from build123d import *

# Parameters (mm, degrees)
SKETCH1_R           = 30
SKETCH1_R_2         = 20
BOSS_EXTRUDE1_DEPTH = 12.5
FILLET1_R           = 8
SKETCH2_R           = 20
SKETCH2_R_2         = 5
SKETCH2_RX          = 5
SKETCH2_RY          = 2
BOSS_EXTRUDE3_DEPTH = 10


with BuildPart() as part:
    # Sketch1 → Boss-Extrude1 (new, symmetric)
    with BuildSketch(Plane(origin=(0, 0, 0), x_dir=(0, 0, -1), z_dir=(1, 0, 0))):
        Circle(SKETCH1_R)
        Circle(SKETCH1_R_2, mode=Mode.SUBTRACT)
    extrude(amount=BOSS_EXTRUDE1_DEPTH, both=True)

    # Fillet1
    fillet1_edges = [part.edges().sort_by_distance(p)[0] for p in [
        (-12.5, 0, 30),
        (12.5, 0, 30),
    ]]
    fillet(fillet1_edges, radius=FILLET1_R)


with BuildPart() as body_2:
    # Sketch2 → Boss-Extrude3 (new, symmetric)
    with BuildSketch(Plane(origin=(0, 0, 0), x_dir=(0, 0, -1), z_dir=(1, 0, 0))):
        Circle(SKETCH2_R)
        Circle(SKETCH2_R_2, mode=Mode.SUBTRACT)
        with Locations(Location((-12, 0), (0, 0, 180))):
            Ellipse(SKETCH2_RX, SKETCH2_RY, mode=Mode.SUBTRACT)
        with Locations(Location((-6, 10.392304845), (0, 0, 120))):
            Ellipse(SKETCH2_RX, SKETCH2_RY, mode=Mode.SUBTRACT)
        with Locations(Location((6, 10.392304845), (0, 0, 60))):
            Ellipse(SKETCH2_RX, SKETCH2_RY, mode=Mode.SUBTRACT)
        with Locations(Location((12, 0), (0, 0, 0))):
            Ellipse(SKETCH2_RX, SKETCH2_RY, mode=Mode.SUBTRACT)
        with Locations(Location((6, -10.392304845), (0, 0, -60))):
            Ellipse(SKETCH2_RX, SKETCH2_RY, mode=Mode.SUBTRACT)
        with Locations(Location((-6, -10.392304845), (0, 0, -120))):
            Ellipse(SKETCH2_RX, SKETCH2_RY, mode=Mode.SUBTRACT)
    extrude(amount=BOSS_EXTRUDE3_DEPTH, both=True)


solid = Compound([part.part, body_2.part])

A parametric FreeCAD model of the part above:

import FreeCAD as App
import Part
import Sketcher


def edges_at(feature, points):
    """Names of the edges that pass closest to the given points."""
    edges = feature.Shape.Edges
    near = lambda p: min(range(len(edges)), key=lambda i: edges[i].distToShape(Part.Vertex(*p))[0])
    return sorted({f"Edge{near(p) + 1}" for p in points})

doc = App.newDocument("Part")
body = doc.addObject("PartDesign::Body", "Body")

sketch1 = body.newObject("Sketcher::SketchObject", "Sketch")
sketch1.AttachmentSupport = (doc.getObject("YZ_Plane"), [""])
sketch1.MapMode = "FlatFace"
sketch1.addGeometry(Part.Circle(App.Vector(0, 0, 0), App.Vector(0, 0, 1), 30), False)
sketch1.addGeometry(Part.Circle(App.Vector(0, 0, 0), App.Vector(0, 0, 1), 20), False)
sketch1.addConstraint(Sketcher.Constraint("Coincident", 0, 3, -1, 1))
sketch1.addConstraint(Sketcher.Constraint("Coincident", 1, 3, -1, 1))
sketch1.addConstraint(Sketcher.Constraint("Diameter", 0, 60.0))
sketch1.addConstraint(Sketcher.Constraint("Diameter", 1, 40.0))
pad1 = body.newObject("PartDesign::Pad", "Pad")
pad1.Profile = sketch1
pad1.Length = 25
pad1.Midplane = True
doc.recompute()

fillet = body.newObject("PartDesign::Fillet", "Fillet")
fillet.Base = (pad1, edges_at(pad1, [(-12.5, 0, 30), (12.5, 0, 30)]))
fillet.Radius = 8
body2 = doc.addObject("PartDesign::Body", "Body001")

sketch2 = body2.newObject("Sketcher::SketchObject", "Sketch001")
sketch2.AttachmentSupport = (doc.getObject("YZ_Plane001"), [""])
sketch2.MapMode = "FlatFace"
sketch2.addGeometry(Part.Circle(App.Vector(0, 0, 0), App.Vector(0, 0, 1), 20), False)
sketch2.addGeometry(Part.Ellipse(App.Vector(-14.722432, 8.5, 0), App.Vector(-11.392305, 4.267949, 0), App.Vector(-10.392305, 6, 0)), False)
sketch2.addGeometry(Part.Ellipse(App.Vector(0, 17, 0), App.Vector(-2, 12, 0), App.Vector(0, 12, 0)), False)
sketch2.addGeometry(Part.Ellipse(App.Vector(-14.722432, -8.5, 0), App.Vector(-9.392305, -7.732051, 0), App.Vector(-10.392305, -6, 0)), False)
sketch2.addGeometry(Part.Circle(App.Vector(0, 0, 0), App.Vector(0, 0, 1), 5), False)
sketch2.addGeometry(Part.Ellipse(App.Vector(0, -17, 0), App.Vector(2, -12, 0), App.Vector(0, -12, 0)), False)
sketch2.addGeometry(Part.Ellipse(App.Vector(14.722432, 8.5, 0), App.Vector(9.392305, 7.732051, 0), App.Vector(10.392305, 6, 0)), False)
sketch2.addGeometry(Part.Ellipse(App.Vector(14.722432, -8.5, 0), App.Vector(11.392305, -4.267949, 0), App.Vector(10.392305, -6, 0)), False)
sketch2.addConstraint(Sketcher.Constraint("Block", 1))
sketch2.addConstraint(Sketcher.Constraint("Block", 2))
sketch2.addConstraint(Sketcher.Constraint("Block", 3))
sketch2.addConstraint(Sketcher.Constraint("Block", 5))
sketch2.addConstraint(Sketcher.Constraint("Block", 6))
sketch2.addConstraint(Sketcher.Constraint("Block", 7))
sketch2.addConstraint(Sketcher.Constraint("Coincident", 0, 3, -1, 1))
sketch2.addConstraint(Sketcher.Constraint("Coincident", 4, 3, -1, 1))
sketch2.addConstraint(Sketcher.Constraint("Diameter", 0, 40.0))
sketch2.addConstraint(Sketcher.Constraint("Diameter", 4, 10.0))
pad2 = body2.newObject("PartDesign::Pad", "Pad001")
pad2.Profile = sketch2
pad2.Length = 20
pad2.Midplane = True

doc.recompute()
